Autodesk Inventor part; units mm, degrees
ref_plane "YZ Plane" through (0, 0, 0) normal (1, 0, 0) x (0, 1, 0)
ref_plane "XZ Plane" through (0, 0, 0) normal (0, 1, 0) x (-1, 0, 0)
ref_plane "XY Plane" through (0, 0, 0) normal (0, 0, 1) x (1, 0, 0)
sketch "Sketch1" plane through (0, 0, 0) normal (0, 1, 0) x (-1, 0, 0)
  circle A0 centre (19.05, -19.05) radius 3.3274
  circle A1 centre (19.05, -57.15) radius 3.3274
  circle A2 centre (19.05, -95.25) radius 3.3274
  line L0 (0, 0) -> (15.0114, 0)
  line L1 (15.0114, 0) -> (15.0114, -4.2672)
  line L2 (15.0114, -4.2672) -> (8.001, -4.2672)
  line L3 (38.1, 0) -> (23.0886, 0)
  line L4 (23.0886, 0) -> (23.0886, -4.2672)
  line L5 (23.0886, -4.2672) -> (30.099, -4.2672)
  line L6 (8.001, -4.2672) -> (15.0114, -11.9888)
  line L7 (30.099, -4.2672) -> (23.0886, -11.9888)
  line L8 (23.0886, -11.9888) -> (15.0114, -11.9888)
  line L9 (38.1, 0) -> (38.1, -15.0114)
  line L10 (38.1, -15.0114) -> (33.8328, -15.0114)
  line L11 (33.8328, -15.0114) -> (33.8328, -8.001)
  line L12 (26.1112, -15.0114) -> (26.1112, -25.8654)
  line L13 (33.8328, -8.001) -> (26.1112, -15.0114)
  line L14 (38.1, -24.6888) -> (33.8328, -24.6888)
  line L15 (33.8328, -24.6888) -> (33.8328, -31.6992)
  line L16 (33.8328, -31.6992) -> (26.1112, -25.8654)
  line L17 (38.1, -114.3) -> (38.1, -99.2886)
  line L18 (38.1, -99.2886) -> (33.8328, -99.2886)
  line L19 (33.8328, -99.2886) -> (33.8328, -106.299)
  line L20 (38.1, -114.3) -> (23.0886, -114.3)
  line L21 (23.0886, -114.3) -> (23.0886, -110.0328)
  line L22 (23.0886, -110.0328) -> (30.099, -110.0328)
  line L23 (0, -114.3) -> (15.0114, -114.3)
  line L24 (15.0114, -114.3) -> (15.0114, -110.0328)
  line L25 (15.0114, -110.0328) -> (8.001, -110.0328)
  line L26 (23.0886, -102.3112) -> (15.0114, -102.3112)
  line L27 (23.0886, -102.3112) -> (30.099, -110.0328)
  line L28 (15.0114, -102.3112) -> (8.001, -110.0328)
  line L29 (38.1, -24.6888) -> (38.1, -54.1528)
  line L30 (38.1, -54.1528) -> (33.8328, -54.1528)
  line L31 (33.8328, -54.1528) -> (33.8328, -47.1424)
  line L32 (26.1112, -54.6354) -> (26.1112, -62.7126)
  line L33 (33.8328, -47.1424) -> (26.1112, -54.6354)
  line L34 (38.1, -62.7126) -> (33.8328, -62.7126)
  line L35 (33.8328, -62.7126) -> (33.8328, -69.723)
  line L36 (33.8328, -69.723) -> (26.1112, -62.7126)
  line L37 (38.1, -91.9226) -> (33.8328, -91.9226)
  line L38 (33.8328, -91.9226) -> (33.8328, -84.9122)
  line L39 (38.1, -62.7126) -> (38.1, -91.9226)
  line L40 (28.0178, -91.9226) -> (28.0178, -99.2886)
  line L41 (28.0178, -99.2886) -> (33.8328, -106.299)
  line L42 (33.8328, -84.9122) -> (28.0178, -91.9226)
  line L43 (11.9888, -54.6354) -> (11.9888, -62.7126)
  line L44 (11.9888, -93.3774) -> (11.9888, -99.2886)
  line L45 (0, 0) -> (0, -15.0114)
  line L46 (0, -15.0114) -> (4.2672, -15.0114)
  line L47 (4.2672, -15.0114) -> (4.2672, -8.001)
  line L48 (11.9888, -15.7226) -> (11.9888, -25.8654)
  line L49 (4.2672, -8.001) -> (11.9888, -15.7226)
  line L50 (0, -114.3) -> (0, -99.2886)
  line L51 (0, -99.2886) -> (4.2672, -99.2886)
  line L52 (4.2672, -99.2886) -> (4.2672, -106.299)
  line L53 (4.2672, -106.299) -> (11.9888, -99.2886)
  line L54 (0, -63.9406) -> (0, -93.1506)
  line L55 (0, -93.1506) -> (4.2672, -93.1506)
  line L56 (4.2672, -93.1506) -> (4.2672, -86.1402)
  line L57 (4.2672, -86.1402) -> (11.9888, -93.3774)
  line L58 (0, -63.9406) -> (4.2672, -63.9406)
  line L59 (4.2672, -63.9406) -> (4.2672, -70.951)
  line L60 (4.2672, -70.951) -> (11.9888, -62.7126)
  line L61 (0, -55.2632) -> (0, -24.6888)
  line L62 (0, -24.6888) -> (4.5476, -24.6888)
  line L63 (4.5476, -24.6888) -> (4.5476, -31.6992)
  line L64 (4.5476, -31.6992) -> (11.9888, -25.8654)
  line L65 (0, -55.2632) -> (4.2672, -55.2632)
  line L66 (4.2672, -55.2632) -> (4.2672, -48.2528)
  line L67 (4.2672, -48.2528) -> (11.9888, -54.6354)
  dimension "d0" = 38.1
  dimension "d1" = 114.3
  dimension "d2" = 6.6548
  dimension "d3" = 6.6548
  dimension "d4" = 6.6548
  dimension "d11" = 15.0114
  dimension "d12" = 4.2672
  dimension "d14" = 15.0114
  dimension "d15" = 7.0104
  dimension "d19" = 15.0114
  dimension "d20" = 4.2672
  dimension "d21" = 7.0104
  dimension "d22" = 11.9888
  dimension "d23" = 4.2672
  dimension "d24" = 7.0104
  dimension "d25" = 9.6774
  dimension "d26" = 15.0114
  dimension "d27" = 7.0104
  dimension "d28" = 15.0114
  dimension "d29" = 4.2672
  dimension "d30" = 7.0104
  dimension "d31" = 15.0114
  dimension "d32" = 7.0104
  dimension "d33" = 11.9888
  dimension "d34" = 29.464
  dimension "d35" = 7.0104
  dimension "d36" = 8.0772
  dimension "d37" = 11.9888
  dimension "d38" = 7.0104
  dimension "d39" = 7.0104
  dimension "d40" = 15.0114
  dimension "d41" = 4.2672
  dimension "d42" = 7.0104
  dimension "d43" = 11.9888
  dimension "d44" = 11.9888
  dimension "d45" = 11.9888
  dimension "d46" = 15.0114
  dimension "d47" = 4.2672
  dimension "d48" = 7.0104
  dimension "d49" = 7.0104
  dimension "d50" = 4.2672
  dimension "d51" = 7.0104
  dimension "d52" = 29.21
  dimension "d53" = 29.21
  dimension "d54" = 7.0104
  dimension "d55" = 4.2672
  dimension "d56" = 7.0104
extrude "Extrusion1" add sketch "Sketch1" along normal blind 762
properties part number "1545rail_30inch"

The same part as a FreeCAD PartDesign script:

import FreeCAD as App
import Part
import Sketcher
Q = App.Units.Quantity


def add_polygon(sketch, points):
    """Adds a closed chain of lines whose ends are joined by coincident constraints."""
    first, n = sketch.GeometryCount, len(points)
    for a, b in zip(points, points[1:] + points[:1]):
        sketch.addGeometry(Part.LineSegment(App.Vector(*a, 0), App.Vector(*b, 0)), False)
    for i in range(n):
        sketch.addConstraint(Sketcher.Constraint("Coincident", first + i, 2, first + (i + 1) % n, 1))

doc = App.newDocument("Part")
params = doc.addObject("Spreadsheet::Sheet", "Params")
for row, (alias, value) in enumerate([
    ("sketch1_diameter", "0.262 in"),
    ("sketch1_height", "1.15 in"),
    ("sketch1_height2", "1.16 in"),
    ("sketch1_width", "0.591 in"),
    ("sketch1_width2", "0.168 in"),
    ("pad1_length", "30 in"),
], start=1):
    params.set(f"A{row}", alias)
    params.set(f"B{row}", "=" + value)
    params.setAlias(f"B{row}", alias)

body = doc.addObject("PartDesign::Body", "Body")

# Sketch on XZ plane
sketch1 = body.newObject("Sketcher::SketchObject", "Sketch")
sketch1.AttachmentSupport = (doc.getObject("XZ_Plane"), [""])
sketch1.MapMode = "FlatFace"
add_polygon(sketch1, [(-15, 0), (0, 0), (0, -15), (-4.3, -15), (-4.3, -8), (-12, -15.7), (-12, -25.9), (-4.5, -31.7), (-4.5, -24.7), (0, -24.7), (0, -55.3), (-4.3, -55.3), (-4.3, -48.3), (-12, -54.6), (-12, -62.7), (-4.3, -71), (-4.3, -63.9), (0, -63.9), (0, -93.2), (-4.3, -93.2), (-4.3, -86.1), (-12, -93.4), (-12, -99.3), (-4.3, -106.3), (-4.3, -99.3), (0, -99.3), (0, -114.3), (-15, -114.3), (-15, -110), (-8, -110), (-15, -102.3), (-23.1, -102.3), (-30.1, -110), (-23.1, -110), (-23.1, -114.3), (-38.1, -114.3), (-38.1, -99.3), (-33.8, -99.3), (-33.8, -106.3), (-28, -99.3), (-28, -91.9), (-33.8, -84.9), (-33.8, -91.9), (-38.1, -91.9), (-38.1, -62.7), (-33.8, -62.7), (-33.8, -69.7), (-26.1, -62.7), (-26.1, -54.6), (-33.8, -47.1), (-33.8, -54.2), (-38.1, -54.2), (-38.1, -24.7), (-33.8, -24.7), (-33.8, -31.7), (-26.1, -25.9), (-26.1, -15), (-33.8, -8), (-33.8, -15), (-38.1, -15), (-38.1, 0), (-23.1, 0), (-23.1, -4.3), (-30.1, -4.3), (-23.1, -12), (-15, -12), (-8, -4.3), (-15, -4.3)])  # lines 0-67
sketch1.addGeometry(Part.Circle(App.Vector(-19.1, -95.2, 0), App.Vector(0, 0, 1), 3.3), False)  # 68
sketch1.addGeometry(Part.Circle(App.Vector(-19.1, -57.1, 0), App.Vector(0, 0, 1), 3.3), False)  # 69
sketch1.addGeometry(Part.Circle(App.Vector(-19.1, -19.1, 0), App.Vector(0, 0, 1), 3.3), False)  # 70
sketch1.addConstraint([
    Sketcher.Constraint("Horizontal", 0),
    Sketcher.Constraint("Vertical", 1),
    Sketcher.Constraint("Horizontal", 2),
    Sketcher.Constraint("Vertical", 3),
    Sketcher.Constraint("Vertical", 5),
    Sketcher.Constraint("Vertical", 7),
    Sketcher.Constraint("Horizontal", 8),
    Sketcher.Constraint("Vertical", 9),
    Sketcher.Constraint("Horizontal", 10),
    Sketcher.Constraint("Vertical", 11),
    Sketcher.Constraint("Vertical", 13),
    Sketcher.Constraint("Vertical", 15),
    Sketcher.Constraint("Horizontal", 16),
    Sketcher.Constraint("Vertical", 17),
    Sketcher.Constraint("Horizontal", 18),
    Sketcher.Constraint("Vertical", 19),
    Sketcher.Constraint("Vertical", 21),
    Sketcher.Constraint("Vertical", 23),
    Sketcher.Constraint("Horizontal", 24),
    Sketcher.Constraint("Vertical", 25),
    Sketcher.Constraint("Horizontal", 26),
    Sketcher.Constraint("Vertical", 27),
    Sketcher.Constraint("Horizontal", 28),
    Sketcher.Constraint("Horizontal", 30),
    Sketcher.Constraint("Horizontal", 32),
    Sketcher.Constraint("Vertical", 33),
    Sketcher.Constraint("Horizontal", 34),
    Sketcher.Constraint("Vertical", 35),
    Sketcher.Constraint("Horizontal", 36),
    Sketcher.Constraint("Vertical", 37),
    Sketcher.Constraint("Vertical", 39),
    Sketcher.Constraint("Vertical", 41),
    Sketcher.Constraint("Horizontal", 42),
    Sketcher.Constraint("Vertical", 43),
    Sketcher.Constraint("Horizontal", 44),
    Sketcher.Constraint("Vertical", 45),
    Sketcher.Constraint("Vertical", 47),
    Sketcher.Constraint("Vertical", 49),
    Sketcher.Constraint("Horizontal", 50),
    Sketcher.Constraint("Vertical", 51),
    Sketcher.Constraint("Horizontal", 52),
    Sketcher.Constraint("Vertical", 53),
    Sketcher.Constraint("Vertical", 55),
    Sketcher.Constraint("Vertical", 57),
    Sketcher.Constraint("Horizontal", 58),
    Sketcher.Constraint("Vertical", 59),
    Sketcher.Constraint("Horizontal", 60),
    Sketcher.Constraint("Vertical", 61),
    Sketcher.Constraint("Horizontal", 62),
    Sketcher.Constraint("Horizontal", 64),
    Sketcher.Constraint("Horizontal", 66),
    Sketcher.Constraint("Vertical", 67),
    Sketcher.Constraint("Coincident", 0, 2, -1, 1),
    Sketcher.Constraint("Equal", 68, 69),
    Sketcher.Constraint("Equal", 69, 70),
    Sketcher.Constraint("PointOnObject", 8, 2, -2),
    Sketcher.Constraint("PointOnObject", 16, 2, -2),
    Sketcher.Constraint("PointOnObject", 24, 2, -2),
    Sketcher.Constraint("PointOnObject", 59, 2, -1),
    Sketcher.Constraint("Perpendicular", 14, 20),
    Sketcher.Constraint("Perpendicular", 22, 31),
    Sketcher.Constraint("Perpendicular", 29, 46),
    Sketcher.Constraint("Perpendicular", 31, 56),
    Sketcher.Constraint("Perpendicular", 46, 63),
    Sketcher.Constraint("Perpendicular", 56, 65),
    Sketcher.Constraint("Horizontal", 21, 2, 23, 2),
    Sketcher.Constraint("Horizontal", 28, 2, 31, 2),
    Sketcher.Constraint("Horizontal", 26, 2, 33, 2),
    Sketcher.Constraint("Horizontal", 24, 2, 35, 2),
    Sketcher.Constraint("Horizontal", 22, 2, 37, 2),
    Sketcher.Constraint("Horizontal", 36, 2, 38, 2),
    Sketcher.Constraint("Horizontal", 39, 2, 41, 2),
    Sketcher.Constraint("Horizontal", 13, 2, 43, 2),
    Sketcher.Constraint("Horizontal", 44, 2, 46, 2),
    Sketcher.Constraint("Horizontal", 12, 2, 47, 2),
    Sketcher.Constraint("Horizontal", 8, 2, 51, 2),
    Sketcher.Constraint("Horizontal", 6, 2, 53, 2),
    Sketcher.Constraint("Horizontal", 5, 2, 54, 2),
    Sketcher.Constraint("Horizontal", 2, 2, 55, 2),
    Sketcher.Constraint("Horizontal", 3, 2, 56, 2),
    Sketcher.Constraint("Horizontal", 55, 2, 57, 2),
    Sketcher.Constraint("Horizontal", 62, 2, 65, 2),
    Sketcher.Constraint("Vertical", 68, 3, 69, 3),
    Sketcher.Constraint("Vertical", 69, 3, 70, 3),
    Sketcher.Constraint("Vertical", 3, 2, 10, 2),
    Sketcher.Constraint("Vertical", 5, 2, 12, 2),
    Sketcher.Constraint("Vertical", 11, 2, 14, 2),
    Sketcher.Constraint("Vertical", 15, 2, 18, 2),
    Sketcher.Constraint("Vertical", 13, 2, 20, 2),
    Sketcher.Constraint("Vertical", 19, 2, 22, 2),
    Sketcher.Constraint("Vertical", 27, 2, 29, 2),
    Sketcher.Constraint("Vertical", 30, 2, 32, 2),
    Sketcher.Constraint("Vertical", 37, 2, 40, 2),
    Sketcher.Constraint("Vertical", 35, 2, 42, 2),
    Sketcher.Constraint("Vertical", 41, 2, 44, 2),
    Sketcher.Constraint("Vertical", 45, 2, 48, 2),
    Sketcher.Constraint("Vertical", 43, 2, 50, 2),
    Sketcher.Constraint("Vertical", 49, 2, 52, 2),
    Sketcher.Constraint("Vertical", 47, 2, 54, 2),
    Sketcher.Constraint("Vertical", 53, 2, 56, 2),
    Sketcher.Constraint("Vertical", 51, 2, 58, 2),
    Sketcher.Constraint("Vertical", 33, 2, 60, 2),
    Sketcher.Constraint("Vertical", 31, 2, 62, 2),
    Sketcher.Constraint("Vertical", 61, 2, 63, 2),
    Sketcher.Constraint("Vertical", 29, 2, 64, 2),
    Sketcher.Constraint("Vertical", 28, 2, 65, 2),
    Sketcher.Constraint("Vertical", 64, 2, 66, 2),
    Sketcher.Constraint("Equal", 26, 34),
    Sketcher.Constraint("Equal", 24, 36),
    Sketcher.Constraint("Equal", 60, 1),
    Sketcher.Constraint("Equal", 66, 3),
    Sketcher.Constraint("Equal", 3, 7),
    Sketcher.Constraint("Equal", 7, 11),
    Sketcher.Constraint("Equal", 64, 13),
    Sketcher.Constraint("Equal", 11, 15),
    Sketcher.Constraint("Equal", 15, 19),
    Sketcher.Constraint("Equal", 19, 23),
    Sketcher.Constraint("Equal", 1, 25),
    Sketcher.Constraint("Equal", 58, 27),
    Sketcher.Constraint("Equal", 37, 41),
    Sketcher.Constraint("Equal", 17, 43),
    Sketcher.Constraint("Equal", 45, 49),
    Sketcher.Constraint("Equal", 33, 61),
    Sketcher.Constraint("Diameter", 68, Q("0.262 in")),
    Sketcher.Constraint("DistanceY", 17, 2, 17, 1, Q("1.15 in")),
    Sketcher.Constraint("DistanceY", 51, 1, 51, 2, Q("1.16 in")),
    Sketcher.Constraint("DistanceY", 25, 2, -1, 1, Q("4.5 in")),
    Sketcher.Constraint("DistanceX", 34, 2, -1, 1, Q("1.5 in")),
    Sketcher.Constraint("DistanceX", 0, 1, 0, 2, Q("0.591 in")),
    Sketcher.Constraint("DistanceX", 2, 2, 2, 1, Q("0.168 in")),
    Sketcher.Constraint("DistanceX", 28, 1, 28, 2, Q("0.276 in")),
    Sketcher.Constraint("Distance", 54, Q("0.381 in")),
    Sketcher.Constraint("DistanceX", 4, 2, -1, 1, Q("0.472 in")),
    Sketcher.Constraint("Angle", 4, Q("-135 deg")),
    Sketcher.Constraint("DistanceY", 39, 1, 39, 2, Q("0.29 in")),
    Sketcher.Constraint("DistanceX", 68, 3, -1, 1, Q("0.75 in")),
    Sketcher.Constraint("DistanceY", 68, 3, -1, 1, Q("3.75 in")),
    Sketcher.Constraint("DistanceY", 69, 3, -1, 1, Q("2.25 in")),
    Sketcher.Constraint("DistanceY", 70, 3, -1, 1, Q("0.75 in")),
    Sketcher.Constraint("Angle", 48, Q("135.8608 deg")),
    Sketcher.Constraint("Distance", 12, Q("0.3944 in")),
    Sketcher.Constraint("Distance", 38, Q("0.3586 in")),
    Sketcher.Constraint("DistanceX", 8, 1, 8, 2, 4.5476),
    Sketcher.Constraint("DistanceY", 21, 2, 21, 1, 5.9112),
])
sketch1.setExpression("Constraints[191]", "Params.sketch1_diameter")
sketch1.setExpression("Constraints[192]", "Params.sketch1_height")
sketch1.setExpression("Constraints[193]", "Params.sketch1_height2")
sketch1.setExpression("Constraints[196]", "Params.sketch1_width")
sketch1.setExpression("Constraints[197]", "Params.sketch1_width2")
pad1 = body.newObject("PartDesign::Pad", "Pad")
pad1.Profile = sketch1
pad1.setExpression("Length", "Params.pad1_length")
pad1.Reversed = True

doc.recompute()
